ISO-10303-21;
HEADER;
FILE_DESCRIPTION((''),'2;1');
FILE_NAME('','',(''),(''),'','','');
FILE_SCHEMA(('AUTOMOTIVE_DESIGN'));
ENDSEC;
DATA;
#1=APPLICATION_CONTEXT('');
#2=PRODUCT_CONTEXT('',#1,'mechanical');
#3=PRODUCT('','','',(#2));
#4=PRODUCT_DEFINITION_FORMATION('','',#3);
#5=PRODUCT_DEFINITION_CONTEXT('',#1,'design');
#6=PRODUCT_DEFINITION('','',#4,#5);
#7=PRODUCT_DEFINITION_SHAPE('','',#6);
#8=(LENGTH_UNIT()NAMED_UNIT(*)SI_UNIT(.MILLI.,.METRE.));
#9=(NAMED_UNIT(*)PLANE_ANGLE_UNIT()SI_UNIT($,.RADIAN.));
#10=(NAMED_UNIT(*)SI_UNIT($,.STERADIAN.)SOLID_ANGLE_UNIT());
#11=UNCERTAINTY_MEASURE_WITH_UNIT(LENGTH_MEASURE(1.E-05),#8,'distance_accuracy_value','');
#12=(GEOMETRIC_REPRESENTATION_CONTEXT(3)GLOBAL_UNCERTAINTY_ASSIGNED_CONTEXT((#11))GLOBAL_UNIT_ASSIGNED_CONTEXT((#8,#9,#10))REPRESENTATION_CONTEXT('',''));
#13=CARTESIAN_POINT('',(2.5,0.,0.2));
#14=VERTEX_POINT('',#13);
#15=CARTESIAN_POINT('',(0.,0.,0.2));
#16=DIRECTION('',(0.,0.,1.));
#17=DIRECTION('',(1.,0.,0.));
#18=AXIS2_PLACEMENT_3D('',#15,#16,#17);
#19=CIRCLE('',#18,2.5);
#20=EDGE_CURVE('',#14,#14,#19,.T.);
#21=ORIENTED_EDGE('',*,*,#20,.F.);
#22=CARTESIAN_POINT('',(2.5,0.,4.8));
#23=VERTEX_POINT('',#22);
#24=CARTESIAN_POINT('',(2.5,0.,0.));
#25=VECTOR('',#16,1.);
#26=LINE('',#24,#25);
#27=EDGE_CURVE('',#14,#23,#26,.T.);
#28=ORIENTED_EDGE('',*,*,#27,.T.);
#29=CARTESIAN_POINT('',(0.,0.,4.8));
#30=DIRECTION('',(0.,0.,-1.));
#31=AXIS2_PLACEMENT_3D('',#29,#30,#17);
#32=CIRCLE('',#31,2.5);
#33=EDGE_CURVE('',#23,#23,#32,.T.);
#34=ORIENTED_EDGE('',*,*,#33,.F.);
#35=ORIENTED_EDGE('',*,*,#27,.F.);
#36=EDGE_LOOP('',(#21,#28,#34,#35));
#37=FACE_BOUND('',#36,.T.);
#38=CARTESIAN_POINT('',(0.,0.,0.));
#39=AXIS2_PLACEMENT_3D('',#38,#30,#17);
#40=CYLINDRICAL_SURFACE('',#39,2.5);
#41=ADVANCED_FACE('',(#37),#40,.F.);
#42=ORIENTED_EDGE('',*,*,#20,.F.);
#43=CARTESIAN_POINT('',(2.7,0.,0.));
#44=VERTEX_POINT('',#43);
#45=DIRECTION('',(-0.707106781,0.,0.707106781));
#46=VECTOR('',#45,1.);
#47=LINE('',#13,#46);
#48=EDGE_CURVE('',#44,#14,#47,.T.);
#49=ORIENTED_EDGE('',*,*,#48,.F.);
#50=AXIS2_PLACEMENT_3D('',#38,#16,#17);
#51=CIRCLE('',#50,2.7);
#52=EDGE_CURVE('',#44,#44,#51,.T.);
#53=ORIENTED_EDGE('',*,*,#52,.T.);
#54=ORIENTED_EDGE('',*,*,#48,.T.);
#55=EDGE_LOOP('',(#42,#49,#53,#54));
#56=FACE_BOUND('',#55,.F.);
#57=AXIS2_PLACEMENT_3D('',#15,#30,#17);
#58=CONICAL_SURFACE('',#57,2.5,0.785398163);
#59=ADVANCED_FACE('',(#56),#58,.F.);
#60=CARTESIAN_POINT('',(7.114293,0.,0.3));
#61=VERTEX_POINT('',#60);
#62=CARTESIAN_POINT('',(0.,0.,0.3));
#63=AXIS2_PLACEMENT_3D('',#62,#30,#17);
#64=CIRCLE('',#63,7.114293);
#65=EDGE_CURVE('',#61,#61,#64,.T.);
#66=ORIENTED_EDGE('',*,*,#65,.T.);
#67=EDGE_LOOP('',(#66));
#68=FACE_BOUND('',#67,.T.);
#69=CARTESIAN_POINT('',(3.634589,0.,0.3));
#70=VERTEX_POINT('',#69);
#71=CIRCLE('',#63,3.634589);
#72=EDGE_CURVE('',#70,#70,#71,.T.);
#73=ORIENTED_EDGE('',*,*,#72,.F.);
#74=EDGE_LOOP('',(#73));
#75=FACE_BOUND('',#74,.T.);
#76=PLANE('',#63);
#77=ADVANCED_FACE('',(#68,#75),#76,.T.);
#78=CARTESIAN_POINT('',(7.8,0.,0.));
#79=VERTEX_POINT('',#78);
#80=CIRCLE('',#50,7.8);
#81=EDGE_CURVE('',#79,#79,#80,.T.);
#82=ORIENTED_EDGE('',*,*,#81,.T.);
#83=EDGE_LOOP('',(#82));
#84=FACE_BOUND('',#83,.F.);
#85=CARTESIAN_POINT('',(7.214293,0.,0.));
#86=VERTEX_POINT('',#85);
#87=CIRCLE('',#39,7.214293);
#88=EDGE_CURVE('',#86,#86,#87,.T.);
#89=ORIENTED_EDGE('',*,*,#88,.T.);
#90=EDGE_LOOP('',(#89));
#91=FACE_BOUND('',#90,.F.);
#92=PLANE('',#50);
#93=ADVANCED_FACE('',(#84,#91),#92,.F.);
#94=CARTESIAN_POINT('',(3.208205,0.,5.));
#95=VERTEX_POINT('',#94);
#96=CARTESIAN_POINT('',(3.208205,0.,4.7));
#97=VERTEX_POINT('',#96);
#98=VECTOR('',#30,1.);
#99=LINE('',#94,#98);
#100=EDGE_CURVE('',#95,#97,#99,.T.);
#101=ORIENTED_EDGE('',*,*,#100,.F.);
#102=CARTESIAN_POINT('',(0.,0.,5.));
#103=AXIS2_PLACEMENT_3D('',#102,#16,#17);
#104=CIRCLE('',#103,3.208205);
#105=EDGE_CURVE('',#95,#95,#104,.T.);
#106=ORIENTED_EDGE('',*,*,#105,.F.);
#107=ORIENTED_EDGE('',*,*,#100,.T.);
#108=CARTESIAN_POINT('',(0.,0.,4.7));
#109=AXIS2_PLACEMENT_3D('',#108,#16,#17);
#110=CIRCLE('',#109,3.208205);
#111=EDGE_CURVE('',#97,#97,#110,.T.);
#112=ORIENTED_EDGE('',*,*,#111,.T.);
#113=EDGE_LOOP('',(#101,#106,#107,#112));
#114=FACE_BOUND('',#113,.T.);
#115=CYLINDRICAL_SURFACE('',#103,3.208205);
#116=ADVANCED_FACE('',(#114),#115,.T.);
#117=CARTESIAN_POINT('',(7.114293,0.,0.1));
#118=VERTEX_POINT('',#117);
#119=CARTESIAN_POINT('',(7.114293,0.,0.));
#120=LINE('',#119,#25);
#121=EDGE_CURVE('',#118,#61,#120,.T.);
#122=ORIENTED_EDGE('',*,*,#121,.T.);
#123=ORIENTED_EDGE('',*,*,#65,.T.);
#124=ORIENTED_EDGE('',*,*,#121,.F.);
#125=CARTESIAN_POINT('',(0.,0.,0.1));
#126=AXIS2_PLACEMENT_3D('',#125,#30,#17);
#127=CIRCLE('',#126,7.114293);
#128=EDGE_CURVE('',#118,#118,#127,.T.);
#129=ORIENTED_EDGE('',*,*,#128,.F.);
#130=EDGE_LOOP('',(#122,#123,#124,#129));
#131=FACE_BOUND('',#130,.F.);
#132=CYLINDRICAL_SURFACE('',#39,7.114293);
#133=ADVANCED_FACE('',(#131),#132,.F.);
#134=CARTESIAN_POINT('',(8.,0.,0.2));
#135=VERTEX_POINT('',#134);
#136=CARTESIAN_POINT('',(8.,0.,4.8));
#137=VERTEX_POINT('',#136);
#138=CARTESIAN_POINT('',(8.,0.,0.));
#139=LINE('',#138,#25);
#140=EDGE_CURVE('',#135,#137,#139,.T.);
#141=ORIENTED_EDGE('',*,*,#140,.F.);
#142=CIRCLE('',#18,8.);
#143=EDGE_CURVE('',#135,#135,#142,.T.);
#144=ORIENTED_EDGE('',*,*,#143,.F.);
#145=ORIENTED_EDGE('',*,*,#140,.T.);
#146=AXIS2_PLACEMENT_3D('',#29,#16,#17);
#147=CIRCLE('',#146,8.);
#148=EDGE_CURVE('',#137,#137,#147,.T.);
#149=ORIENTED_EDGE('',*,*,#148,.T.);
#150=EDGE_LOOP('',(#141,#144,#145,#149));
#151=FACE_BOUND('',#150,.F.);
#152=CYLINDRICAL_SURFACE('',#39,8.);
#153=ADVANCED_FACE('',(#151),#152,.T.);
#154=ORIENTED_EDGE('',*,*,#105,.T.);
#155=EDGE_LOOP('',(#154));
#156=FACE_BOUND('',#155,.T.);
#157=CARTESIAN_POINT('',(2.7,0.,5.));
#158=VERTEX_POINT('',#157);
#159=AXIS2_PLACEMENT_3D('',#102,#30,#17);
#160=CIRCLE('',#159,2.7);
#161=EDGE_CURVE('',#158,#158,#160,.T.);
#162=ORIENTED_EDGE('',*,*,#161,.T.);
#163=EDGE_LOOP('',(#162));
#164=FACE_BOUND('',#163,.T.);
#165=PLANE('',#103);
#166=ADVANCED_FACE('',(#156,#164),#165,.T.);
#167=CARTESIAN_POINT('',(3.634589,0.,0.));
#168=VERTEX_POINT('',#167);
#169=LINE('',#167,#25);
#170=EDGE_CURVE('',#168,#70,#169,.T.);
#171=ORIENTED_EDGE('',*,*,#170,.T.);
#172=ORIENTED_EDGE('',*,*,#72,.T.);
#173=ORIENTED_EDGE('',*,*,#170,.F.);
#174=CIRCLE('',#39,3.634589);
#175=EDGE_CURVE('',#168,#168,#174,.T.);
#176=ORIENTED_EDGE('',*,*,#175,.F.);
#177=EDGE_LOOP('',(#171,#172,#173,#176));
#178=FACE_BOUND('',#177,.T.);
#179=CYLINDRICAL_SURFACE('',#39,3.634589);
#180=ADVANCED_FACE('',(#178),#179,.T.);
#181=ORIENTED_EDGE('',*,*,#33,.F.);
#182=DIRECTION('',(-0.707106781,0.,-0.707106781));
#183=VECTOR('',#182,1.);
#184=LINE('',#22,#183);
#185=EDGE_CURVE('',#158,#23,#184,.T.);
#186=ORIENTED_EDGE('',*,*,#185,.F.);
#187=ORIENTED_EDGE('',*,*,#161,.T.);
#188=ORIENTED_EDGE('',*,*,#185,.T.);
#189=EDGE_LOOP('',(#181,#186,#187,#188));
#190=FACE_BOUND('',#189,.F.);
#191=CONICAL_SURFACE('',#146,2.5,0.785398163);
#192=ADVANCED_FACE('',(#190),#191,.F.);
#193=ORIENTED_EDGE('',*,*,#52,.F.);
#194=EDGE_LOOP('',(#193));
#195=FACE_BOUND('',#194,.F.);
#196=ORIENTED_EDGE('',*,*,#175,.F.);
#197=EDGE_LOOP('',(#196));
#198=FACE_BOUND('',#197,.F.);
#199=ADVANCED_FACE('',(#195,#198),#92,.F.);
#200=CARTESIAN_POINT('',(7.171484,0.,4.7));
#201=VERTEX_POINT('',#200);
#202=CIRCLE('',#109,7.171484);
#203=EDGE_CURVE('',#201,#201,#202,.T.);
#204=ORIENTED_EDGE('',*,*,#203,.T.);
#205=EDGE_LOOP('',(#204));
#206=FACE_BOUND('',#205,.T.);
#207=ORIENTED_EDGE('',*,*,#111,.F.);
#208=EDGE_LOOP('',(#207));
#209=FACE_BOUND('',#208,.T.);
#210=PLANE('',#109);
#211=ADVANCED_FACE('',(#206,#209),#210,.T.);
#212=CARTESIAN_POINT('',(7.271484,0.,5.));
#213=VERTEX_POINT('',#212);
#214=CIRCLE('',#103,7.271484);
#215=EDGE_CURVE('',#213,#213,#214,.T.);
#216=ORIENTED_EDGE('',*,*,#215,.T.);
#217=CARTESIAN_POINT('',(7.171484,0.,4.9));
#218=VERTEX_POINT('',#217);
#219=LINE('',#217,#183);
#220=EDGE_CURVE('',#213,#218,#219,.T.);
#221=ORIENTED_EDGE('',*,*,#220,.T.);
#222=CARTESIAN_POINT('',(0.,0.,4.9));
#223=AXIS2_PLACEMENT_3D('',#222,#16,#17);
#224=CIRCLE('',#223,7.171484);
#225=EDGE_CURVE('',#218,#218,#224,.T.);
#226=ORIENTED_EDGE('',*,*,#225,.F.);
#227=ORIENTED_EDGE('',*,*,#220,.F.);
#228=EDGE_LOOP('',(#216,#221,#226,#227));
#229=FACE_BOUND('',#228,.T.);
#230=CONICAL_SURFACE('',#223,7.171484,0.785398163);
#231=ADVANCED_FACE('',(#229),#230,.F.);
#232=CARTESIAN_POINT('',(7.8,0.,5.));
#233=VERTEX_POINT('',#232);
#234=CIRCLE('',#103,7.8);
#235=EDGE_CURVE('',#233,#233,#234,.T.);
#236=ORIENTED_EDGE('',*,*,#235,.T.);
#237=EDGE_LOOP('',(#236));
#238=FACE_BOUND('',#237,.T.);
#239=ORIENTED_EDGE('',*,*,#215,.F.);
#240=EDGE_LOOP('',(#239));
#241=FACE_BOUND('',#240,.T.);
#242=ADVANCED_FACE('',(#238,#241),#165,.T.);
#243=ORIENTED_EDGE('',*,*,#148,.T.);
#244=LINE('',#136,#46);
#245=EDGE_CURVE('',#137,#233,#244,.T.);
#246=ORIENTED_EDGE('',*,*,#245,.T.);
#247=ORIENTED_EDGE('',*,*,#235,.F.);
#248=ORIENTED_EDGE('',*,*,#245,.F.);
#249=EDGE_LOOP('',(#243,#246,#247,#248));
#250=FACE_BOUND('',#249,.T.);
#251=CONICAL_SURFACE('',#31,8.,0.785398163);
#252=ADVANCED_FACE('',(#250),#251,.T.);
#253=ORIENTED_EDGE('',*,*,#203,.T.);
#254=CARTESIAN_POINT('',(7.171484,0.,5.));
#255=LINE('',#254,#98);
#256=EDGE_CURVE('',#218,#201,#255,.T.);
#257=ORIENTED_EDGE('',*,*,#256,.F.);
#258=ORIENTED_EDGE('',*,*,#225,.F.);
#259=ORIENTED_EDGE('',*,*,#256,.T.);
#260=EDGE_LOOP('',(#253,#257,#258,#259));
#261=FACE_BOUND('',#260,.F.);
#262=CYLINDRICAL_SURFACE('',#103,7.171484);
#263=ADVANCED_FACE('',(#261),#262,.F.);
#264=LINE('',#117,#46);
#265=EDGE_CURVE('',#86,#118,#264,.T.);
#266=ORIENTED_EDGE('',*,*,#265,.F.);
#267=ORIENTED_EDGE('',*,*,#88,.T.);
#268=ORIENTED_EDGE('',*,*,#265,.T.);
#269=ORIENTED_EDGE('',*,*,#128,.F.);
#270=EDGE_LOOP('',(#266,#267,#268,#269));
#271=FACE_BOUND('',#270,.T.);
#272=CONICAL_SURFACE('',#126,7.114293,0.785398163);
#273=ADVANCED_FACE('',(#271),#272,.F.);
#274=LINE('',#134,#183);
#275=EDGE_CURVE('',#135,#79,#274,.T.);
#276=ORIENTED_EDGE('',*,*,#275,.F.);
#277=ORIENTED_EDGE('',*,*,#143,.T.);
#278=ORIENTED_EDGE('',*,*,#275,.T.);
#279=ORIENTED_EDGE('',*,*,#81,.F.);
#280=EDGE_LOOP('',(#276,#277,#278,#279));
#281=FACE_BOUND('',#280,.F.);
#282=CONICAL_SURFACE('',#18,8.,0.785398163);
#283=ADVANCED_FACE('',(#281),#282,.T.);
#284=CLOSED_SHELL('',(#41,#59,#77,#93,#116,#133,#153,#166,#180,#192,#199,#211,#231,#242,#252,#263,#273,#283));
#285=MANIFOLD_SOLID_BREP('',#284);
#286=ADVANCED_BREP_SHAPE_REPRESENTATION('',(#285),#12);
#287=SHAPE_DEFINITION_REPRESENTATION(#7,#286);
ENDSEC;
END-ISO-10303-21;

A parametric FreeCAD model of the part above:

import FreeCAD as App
import Part
import Sketcher
from FreeCAD import Vector


def edges_at(feature, points):
    """Names of the edges that pass closest to the given points."""
    edges = feature.Shape.Edges
    near = lambda p: min(range(len(edges)), key=lambda i: edges[i].distToShape(Part.Vertex(*p))[0])
    return sorted({f"Edge{near(p) + 1}" for p in points})

doc = App.newDocument("Part")
params = doc.addObject("Spreadsheet::Sheet", "Params")
for row, (alias, value) in enumerate([
    ("sketch1_diameter", "16 mm"),
    ("pad1_length", "5 mm"),
    ("sketch2_diameter", "5 mm"),
    ("pocket1_length", "10 mm"),
    ("chamfer_size", "0.2 mm"),
    ("pocket2_length", "0.3 mm"),
    ("pocket3_length", "0.3 mm"),
    ("chamfer2_size", "0.1 mm"),
], start=1):
    params.set(f"A{row}", alias)
    params.set(f"B{row}", "=" + value)
    params.setAlias(f"B{row}", alias)

body = doc.addObject("PartDesign::Body", "Body")

# Sketch on XY plane
sketch1 = body.newObject("Sketcher::SketchObject", "Sketch")
sketch1.AttachmentSupport = (doc.getObject("XY_Plane"), [""])
sketch1.MapMode = "FlatFace"
sketch1.addGeometry(Part.Circle(Vector(0, 0, 0), Vector(0, 0, 1), 8), False)
sketch1.addConstraint([
    Sketcher.Constraint("Coincident", 0, 3, -1, 1),
    Sketcher.Constraint("Diameter", 0, 16.0),
])
sketch1.setExpression("Constraints[1]", "Params.sketch1_diameter")
pad1 = body.newObject("PartDesign::Pad", "Pad")
pad1.Profile = sketch1
pad1.setExpression("Length", "Params.pad1_length")

# Sketch on XY plane
sketch2 = body.newObject("Sketcher::SketchObject", "Sketch001")
sketch2.AttachmentSupport = (doc.getObject("XY_Plane"), [""])
sketch2.MapMode = "FlatFace"
sketch2.addGeometry(Part.Circle(Vector(0, 0, 0), Vector(0, 0, 1), 2.5), False)
sketch2.addConstraint([
    Sketcher.Constraint("Coincident", 0, 3, -1, 1),
    Sketcher.Constraint("Diameter", 0, 5.0),
])
sketch2.setExpression("Constraints[1]", "Params.sketch2_diameter")
pocket1 = body.newObject("PartDesign::Pocket", "Pocket")
pocket1.Profile = sketch2
pocket1.setExpression("Length", "Params.pocket1_length")
pocket1.Reversed = True
doc.recompute()

chamfer = body.newObject("PartDesign::Chamfer", "Chamfer")
chamfer.Base = (pocket1, edges_at(pocket1, [
    (-8, 0, 5),
    (-8, 0, 0),
    (-2.5, 0, 5),
    (-2.5, 0, 0),
]))
chamfer.setExpression("Size", "Params.chamfer_size")

# Sketch on XY plane
sketch3 = body.newObject("Sketcher::SketchObject", "Sketch002")
sketch3.AttachmentSupport = (doc.getObject("XY_Plane"), [""])
sketch3.MapMode = "FlatFace"
sketch3.AttachmentOffset = App.Placement(Vector(0, 0, 5), App.Rotation())
sketch3.addGeometry([
    Part.Circle(Vector(0, 0, 0), Vector(0, 0, 1), 7.2),
    Part.Circle(Vector(0, 0, 0), Vector(0, 0, 1), 3.2),
], False)
sketch3.addConstraint([
    Sketcher.Constraint("Coincident", 0, 3, -1, 1),
    Sketcher.Constraint("Coincident", 1, 3, -1, 1),
    Sketcher.Constraint("Diameter", 0, 14.342968),
    Sketcher.Constraint("Diameter", 1, 6.41641),
])
pocket2 = body.newObject("PartDesign::Pocket", "Pocket001")
pocket2.Profile = sketch3
pocket2.setExpression("Length", "Params.pocket2_length")

# Sketch on XY plane
sketch4 = body.newObject("Sketcher::SketchObject", "Sketch003")
sketch4.AttachmentSupport = (doc.getObject("XY_Plane"), [""])
sketch4.MapMode = "FlatFace"
sketch4.addGeometry([
    Part.Circle(Vector(0, 0, 0), Vector(0, 0, 1), 7.1),
    Part.Circle(Vector(0, 0, 0), Vector(0, 0, 1), 3.6),
], False)
sketch4.addConstraint([
    Sketcher.Constraint("Coincident", 0, 3, -1, 1),
    Sketcher.Constraint("Coincident", 1, 3, -1, 1),
    Sketcher.Constraint("Diameter", 0, 14.228586),
    Sketcher.Constraint("Diameter", 1, 7.269178),
])
pocket3 = body.newObject("PartDesign::Pocket", "Pocket002")
pocket3.Profile = sketch4
pocket3.setExpression("Length", "Params.pocket3_length")
pocket3.Reversed = True
doc.recompute()

chamfer2 = body.newObject("PartDesign::Chamfer", "Chamfer001")
chamfer2.Base = (pocket3, edges_at(pocket3, [(-7.171, 0, 5), (-7.114, 0, 0)]))
chamfer2.setExpression("Size", "Params.chamfer2_size")

doc.recompute()
